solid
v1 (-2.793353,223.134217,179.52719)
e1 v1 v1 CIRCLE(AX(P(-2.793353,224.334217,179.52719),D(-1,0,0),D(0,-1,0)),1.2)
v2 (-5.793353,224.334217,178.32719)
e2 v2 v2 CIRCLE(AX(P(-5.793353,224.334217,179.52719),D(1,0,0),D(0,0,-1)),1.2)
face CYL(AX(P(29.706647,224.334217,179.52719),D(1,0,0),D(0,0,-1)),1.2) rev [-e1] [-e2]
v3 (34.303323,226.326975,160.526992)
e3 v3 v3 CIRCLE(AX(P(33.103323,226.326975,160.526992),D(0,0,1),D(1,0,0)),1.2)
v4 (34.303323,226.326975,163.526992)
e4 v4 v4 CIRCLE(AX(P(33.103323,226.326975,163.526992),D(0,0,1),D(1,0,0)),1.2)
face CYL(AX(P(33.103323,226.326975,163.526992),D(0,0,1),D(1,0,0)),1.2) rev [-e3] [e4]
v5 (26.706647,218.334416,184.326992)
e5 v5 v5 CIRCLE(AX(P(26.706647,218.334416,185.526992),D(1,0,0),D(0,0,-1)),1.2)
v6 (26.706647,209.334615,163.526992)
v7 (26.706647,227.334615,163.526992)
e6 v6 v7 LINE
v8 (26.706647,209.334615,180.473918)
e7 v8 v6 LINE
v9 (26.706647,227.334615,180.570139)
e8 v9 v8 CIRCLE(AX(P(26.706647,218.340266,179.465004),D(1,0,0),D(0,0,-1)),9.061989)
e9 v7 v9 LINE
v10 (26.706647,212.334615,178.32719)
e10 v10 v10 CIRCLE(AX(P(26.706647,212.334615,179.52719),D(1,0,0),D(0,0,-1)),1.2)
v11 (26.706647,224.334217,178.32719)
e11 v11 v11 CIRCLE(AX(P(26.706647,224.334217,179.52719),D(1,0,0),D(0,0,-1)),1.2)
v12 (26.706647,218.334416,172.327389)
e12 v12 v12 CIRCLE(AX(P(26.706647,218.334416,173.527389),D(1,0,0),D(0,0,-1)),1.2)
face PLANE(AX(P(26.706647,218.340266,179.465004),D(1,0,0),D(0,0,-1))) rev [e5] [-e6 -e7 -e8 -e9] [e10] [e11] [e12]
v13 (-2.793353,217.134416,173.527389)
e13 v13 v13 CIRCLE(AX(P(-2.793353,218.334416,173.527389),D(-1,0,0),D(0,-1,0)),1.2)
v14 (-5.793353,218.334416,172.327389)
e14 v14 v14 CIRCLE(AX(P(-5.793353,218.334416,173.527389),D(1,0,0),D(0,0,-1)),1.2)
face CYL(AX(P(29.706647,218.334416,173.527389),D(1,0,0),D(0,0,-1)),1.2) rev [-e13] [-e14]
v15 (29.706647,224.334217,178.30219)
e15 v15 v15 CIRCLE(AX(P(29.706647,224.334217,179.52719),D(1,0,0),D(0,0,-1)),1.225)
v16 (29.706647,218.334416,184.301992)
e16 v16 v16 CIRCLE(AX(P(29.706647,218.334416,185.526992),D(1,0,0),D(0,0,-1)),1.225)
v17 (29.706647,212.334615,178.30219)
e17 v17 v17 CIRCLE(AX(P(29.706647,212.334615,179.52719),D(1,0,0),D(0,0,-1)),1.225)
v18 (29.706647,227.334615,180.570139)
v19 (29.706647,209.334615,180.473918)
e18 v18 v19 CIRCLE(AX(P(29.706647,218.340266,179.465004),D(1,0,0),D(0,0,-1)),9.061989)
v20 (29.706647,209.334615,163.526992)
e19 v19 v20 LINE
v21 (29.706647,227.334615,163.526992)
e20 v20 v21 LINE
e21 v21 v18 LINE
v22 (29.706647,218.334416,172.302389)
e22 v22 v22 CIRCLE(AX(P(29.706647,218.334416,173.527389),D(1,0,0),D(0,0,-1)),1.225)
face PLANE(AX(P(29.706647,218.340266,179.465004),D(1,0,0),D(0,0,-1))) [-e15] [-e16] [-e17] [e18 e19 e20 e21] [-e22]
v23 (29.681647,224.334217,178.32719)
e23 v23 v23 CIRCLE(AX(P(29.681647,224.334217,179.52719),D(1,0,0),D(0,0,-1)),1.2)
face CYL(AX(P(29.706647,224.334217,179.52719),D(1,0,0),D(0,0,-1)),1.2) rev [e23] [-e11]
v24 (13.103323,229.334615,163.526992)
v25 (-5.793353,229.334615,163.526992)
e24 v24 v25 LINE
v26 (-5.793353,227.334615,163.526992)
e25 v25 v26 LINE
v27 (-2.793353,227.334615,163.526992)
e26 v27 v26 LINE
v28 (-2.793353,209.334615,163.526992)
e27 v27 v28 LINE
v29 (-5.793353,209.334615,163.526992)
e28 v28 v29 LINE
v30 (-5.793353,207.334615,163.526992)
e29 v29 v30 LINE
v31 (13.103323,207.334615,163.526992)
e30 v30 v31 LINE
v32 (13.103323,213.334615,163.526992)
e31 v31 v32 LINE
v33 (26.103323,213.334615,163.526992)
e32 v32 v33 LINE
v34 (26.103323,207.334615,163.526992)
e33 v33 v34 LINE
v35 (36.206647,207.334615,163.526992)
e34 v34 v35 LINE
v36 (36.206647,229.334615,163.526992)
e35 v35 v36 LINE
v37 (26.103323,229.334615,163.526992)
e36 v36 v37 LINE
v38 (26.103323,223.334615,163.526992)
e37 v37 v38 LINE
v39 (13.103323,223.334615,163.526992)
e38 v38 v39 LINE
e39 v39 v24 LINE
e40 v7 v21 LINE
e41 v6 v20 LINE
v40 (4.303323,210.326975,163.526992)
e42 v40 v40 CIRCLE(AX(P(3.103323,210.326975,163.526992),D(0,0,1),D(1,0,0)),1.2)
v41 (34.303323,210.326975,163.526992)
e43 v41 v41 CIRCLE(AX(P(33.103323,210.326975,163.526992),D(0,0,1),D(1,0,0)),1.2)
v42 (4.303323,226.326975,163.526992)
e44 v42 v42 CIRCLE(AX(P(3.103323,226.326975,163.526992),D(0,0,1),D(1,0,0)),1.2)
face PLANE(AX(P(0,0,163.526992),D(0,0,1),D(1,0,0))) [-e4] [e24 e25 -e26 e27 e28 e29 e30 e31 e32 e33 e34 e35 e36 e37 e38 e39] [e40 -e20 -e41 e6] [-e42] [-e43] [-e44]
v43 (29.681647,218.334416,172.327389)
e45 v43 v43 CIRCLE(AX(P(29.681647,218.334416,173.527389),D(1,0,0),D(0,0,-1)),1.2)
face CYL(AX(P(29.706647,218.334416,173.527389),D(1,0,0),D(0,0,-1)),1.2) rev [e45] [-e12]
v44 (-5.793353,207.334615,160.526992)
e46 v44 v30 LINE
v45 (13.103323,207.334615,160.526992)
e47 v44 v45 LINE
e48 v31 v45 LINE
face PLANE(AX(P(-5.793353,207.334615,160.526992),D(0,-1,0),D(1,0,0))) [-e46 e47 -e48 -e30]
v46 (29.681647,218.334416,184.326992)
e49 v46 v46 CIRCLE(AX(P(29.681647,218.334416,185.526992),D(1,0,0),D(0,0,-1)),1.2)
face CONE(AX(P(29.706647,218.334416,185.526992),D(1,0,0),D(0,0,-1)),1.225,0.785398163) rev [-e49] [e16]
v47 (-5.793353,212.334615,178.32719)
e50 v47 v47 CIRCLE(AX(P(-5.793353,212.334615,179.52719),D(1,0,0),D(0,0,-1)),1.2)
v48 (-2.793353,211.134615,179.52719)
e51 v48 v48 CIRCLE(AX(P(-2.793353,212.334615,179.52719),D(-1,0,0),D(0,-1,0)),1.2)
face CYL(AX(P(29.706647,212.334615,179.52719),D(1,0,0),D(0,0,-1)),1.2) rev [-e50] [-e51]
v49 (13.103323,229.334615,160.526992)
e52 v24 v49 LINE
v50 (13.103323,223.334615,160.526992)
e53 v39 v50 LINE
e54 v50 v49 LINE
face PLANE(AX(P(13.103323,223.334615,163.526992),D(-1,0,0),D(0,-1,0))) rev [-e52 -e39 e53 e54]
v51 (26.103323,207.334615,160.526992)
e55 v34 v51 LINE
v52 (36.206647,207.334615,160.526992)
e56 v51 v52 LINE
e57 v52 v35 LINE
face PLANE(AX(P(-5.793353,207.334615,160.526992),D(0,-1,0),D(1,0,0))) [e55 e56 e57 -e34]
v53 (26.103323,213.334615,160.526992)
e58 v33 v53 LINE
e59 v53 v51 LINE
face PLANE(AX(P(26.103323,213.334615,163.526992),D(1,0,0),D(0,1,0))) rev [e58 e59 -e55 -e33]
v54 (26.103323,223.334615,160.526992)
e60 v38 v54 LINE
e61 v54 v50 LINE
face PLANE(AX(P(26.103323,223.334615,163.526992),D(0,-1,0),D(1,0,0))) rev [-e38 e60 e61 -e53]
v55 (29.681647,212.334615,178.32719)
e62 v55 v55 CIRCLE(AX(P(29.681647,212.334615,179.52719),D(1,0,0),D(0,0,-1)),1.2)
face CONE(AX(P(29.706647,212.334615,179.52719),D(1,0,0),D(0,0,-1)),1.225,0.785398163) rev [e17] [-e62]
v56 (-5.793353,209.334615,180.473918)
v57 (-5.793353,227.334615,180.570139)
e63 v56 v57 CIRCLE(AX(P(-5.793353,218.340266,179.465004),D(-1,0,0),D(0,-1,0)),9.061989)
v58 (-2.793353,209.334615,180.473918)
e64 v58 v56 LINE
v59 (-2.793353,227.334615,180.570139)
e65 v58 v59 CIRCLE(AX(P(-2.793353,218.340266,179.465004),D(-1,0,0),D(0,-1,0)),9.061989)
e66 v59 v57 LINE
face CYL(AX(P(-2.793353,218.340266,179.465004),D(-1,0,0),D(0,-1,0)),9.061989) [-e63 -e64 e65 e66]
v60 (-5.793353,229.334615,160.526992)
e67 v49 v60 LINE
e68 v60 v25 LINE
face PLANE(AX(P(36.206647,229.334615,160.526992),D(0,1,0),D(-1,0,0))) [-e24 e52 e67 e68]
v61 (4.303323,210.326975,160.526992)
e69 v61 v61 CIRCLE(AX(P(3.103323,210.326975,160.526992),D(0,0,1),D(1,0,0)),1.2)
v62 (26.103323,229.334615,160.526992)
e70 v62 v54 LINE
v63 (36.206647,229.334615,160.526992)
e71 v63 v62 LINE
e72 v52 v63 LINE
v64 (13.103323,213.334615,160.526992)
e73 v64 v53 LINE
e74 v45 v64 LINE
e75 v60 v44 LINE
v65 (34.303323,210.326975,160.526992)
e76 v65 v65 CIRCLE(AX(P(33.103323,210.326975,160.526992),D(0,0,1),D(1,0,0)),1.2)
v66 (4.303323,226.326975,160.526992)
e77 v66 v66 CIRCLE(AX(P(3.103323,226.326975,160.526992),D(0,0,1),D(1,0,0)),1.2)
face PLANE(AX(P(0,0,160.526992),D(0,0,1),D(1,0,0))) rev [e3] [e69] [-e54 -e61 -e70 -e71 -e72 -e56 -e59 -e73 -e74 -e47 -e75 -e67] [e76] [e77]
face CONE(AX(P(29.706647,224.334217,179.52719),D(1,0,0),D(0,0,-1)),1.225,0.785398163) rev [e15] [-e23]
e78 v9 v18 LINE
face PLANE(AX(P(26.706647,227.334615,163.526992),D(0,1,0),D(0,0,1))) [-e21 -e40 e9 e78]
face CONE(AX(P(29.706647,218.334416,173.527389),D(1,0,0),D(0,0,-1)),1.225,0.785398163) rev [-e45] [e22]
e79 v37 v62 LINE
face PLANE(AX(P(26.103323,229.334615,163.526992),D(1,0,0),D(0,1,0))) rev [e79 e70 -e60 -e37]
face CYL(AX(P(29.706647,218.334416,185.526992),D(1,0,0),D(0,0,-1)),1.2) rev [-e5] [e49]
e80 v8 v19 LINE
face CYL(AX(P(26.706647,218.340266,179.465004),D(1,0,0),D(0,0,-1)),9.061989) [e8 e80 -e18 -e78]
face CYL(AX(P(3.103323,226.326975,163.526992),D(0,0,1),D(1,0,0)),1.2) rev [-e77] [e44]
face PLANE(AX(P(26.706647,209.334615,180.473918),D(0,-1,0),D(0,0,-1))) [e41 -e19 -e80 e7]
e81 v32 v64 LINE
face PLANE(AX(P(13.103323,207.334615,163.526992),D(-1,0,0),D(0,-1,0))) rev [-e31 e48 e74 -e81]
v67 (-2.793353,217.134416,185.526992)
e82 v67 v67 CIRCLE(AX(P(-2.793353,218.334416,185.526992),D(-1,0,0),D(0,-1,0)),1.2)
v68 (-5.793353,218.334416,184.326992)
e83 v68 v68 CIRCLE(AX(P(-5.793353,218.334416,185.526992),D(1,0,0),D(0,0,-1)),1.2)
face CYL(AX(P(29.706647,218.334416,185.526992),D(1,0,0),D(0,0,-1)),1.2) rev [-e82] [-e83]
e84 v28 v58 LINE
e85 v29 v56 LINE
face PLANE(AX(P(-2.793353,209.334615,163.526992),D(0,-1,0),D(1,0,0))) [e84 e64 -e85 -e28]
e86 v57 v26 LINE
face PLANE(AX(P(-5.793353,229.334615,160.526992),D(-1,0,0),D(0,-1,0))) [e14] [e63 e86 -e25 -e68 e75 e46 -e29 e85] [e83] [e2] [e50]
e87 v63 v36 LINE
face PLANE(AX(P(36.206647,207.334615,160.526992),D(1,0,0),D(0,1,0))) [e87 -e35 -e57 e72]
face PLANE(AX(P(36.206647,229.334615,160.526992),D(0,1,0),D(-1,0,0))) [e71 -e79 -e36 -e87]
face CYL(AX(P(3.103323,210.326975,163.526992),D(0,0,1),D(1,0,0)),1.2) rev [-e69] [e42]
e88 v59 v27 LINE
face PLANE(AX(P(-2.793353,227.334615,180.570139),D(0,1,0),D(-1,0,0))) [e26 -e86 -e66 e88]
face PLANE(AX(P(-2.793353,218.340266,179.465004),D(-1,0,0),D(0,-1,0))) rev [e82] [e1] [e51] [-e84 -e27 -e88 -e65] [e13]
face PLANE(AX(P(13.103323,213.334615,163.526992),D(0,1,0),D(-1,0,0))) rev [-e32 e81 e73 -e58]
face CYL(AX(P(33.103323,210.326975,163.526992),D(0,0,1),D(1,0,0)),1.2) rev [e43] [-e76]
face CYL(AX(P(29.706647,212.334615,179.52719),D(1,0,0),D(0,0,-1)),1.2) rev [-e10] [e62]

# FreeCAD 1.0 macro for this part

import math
import FreeCAD as App
import Part
import Sketcher
Q = App.Units.Quantity


def add_polygon(sketch, points):
    """Adds a closed chain of lines whose ends are joined by coincident constraints."""
    first, n = sketch.GeometryCount, len(points)
    for a, b in zip(points, points[1:] + points[:1]):
        sketch.addGeometry(Part.LineSegment(App.Vector(*a, 0), App.Vector(*b, 0)), False)
    for i in range(n):
        sketch.addConstraint(Sketcher.Constraint("Coincident", first + i, 2, first + (i + 1) % n, 1))

doc = App.newDocument("Part")
body = doc.addObject("PartDesign::Body", "Body")

# Sketch on XY plane
sketch1 = body.newObject("Sketcher::SketchObject", "Sketch")
sketch1.AttachmentSupport = (doc.getObject("XY_Plane"), [""])
sketch1.MapMode = "FlatFace"
sketch1.AttachmentOffset = App.Placement(App.Vector(0, 0, 163.526992), App.Rotation())
add_polygon(sketch1, [(-5.793353, 229.334615), (-5.793353, 207.334615), (36.206647, 207.334615), (36.206647, 229.334615)])  # lines 0-3
sketch1.addConstraint(Sketcher.Constraint("Vertical", 0))
sketch1.addConstraint(Sketcher.Constraint("Horizontal", 1))
sketch1.addConstraint(Sketcher.Constraint("Vertical", 2))
sketch1.addConstraint(Sketcher.Constraint("Horizontal", 3))
sketch1.addConstraint(Sketcher.Constraint("DistanceX", 1, 1, 1, 2, Q("42 mm")))
sketch1.addConstraint(Sketcher.Constraint("DistanceY", 0, 2, 0, 1, Q("22 mm")))
sketch1.addConstraint(Sketcher.Constraint("DistanceX", 0, 2, -1, 1, Q("5.793353 mm")))
sketch1.addConstraint(Sketcher.Constraint("DistanceY", -1, 1, 0, 2, Q("207.334615 mm")))
pad1 = body.newObject("PartDesign::Pad", "Pad")
pad1.Profile = sketch1
pad1.Length = 3
pad1.Reversed = True

# Sketch on XY plane
sketch2 = body.newObject("Sketcher::SketchObject", "Sketch001")
sketch2.AttachmentSupport = (doc.getObject("XY_Plane"), [""])
sketch2.MapMode = "FlatFace"
sketch2.AttachmentOffset = App.Placement(App.Vector(0, 0, 160.526992), App.Rotation())
add_polygon(sketch2, [(26.103323, 229.334615), (26.103323, 223.334615), (13.103323, 223.334615), (13.103323, 229.334615)])  # lines 0-3
sketch2.addConstraint(Sketcher.Constraint("Vertical", 0))
sketch2.addConstraint(Sketcher.Constraint("Horizontal", 1))
sketch2.addConstraint(Sketcher.Constraint("Vertical", 2))
sketch2.addConstraint(Sketcher.Constraint("Horizontal", 3))
sketch2.addConstraint(Sketcher.Constraint("DistanceX", 1, 2, 1, 1, Q("13 mm")))
sketch2.addConstraint(Sketcher.Constraint("DistanceY", 0, 2, 0, 1, Q("6 mm")))
sketch2.addConstraint(Sketcher.Constraint("DistanceX", -1, 1, 0, 2, Q("26.103323 mm")))
sketch2.addConstraint(Sketcher.Constraint("DistanceY", -1, 1, 0, 2, Q("223.334615 mm")))
pocket1 = body.newObject("PartDesign::Pocket", "Pocket")
pocket1.Profile = sketch2
pocket1.Type = "ThroughAll"
pocket1.Reversed = True

# Sketch on XY plane
sketch3 = body.newObject("Sketcher::SketchObject", "Sketch002")
sketch3.AttachmentSupport = (doc.getObject("XY_Plane"), [""])
sketch3.MapMode = "FlatFace"
sketch3.AttachmentOffset = App.Placement(App.Vector(0, 0, 160.526992), App.Rotation())
add_polygon(sketch3, [(26.103323, 213.334615), (26.103323, 207.334615), (13.103323, 207.334615), (13.103323, 213.334615)])  # lines 0-3
sketch3.addConstraint(Sketcher.Constraint("Vertical", 0))
sketch3.addConstraint(Sketcher.Constraint("Horizontal", 1))
sketch3.addConstraint(Sketcher.Constraint("Vertical", 2))
sketch3.addConstraint(Sketcher.Constraint("Horizontal", 3))
sketch3.addConstraint(Sketcher.Constraint("DistanceX", 1, 2, 1, 1, Q("13 mm")))
sketch3.addConstraint(Sketcher.Constraint("DistanceY", 0, 2, 0, 1, Q("6 mm")))
sketch3.addConstraint(Sketcher.Constraint("DistanceX", -1, 1, 0, 2, Q("26.103323 mm")))
sketch3.addConstraint(Sketcher.Constraint("DistanceY", -1, 1, 0, 2, Q("207.334615 mm")))
pocket2 = body.newObject("PartDesign::Pocket", "Pocket001")
pocket2.Profile = sketch3
pocket2.Type = "ThroughAll"
pocket2.Reversed = True

# Sketch on YZ plane
sketch4 = body.newObject("Sketcher::SketchObject", "Sketch003")
sketch4.AttachmentSupport = (doc.getObject("YZ_Plane"), [""])
sketch4.MapMode = "FlatFace"
sketch4.AttachmentOffset = App.Placement(App.Vector(0, 0, -5.793353), App.Rotation())
sketch4.addGeometry(Part.LineSegment(App.Vector(227.334615, 180.570139, 0), App.Vector(227.334615, 163.526992, 0)), False)
sketch4.addGeometry(Part.LineSegment(App.Vector(227.334615, 163.526992, 0), App.Vector(209.334615, 163.526992, 0)), False)
sketch4.addGeometry(Part.LineSegment(App.Vector(209.334615, 163.526992, 0), App.Vector(209.334615, 180.473918, 0)), False)
sketch4.addGeometry(Part.ArcOfCircle(Part.Circle(App.Vector(218.340266, 179.465004, 0), App.Vector(0, 0, 1), 9.061989), math.radians(7.004816), math.radians(173.607742)), False)
sketch4.addConstraint(Sketcher.Constraint("Coincident", 0, 2, 1, 1))
sketch4.addConstraint(Sketcher.Constraint("Coincident", 1, 2, 2, 1))
sketch4.addConstraint(Sketcher.Constraint("Coincident", 2, 2, 3, 2))
sketch4.addConstraint(Sketcher.Constraint("Coincident", 3, 1, 0, 1))
sketch4.addConstraint(Sketcher.Constraint("Vertical", 0))
sketch4.addConstraint(Sketcher.Constraint("Horizontal", 1))
sketch4.addConstraint(Sketcher.Constraint("Vertical", 2))
sketch4.addConstraint(Sketcher.Constraint("DistanceX", 1, 2, 1, 1, Q("18 mm")))
sketch4.addConstraint(Sketcher.Constraint("Radius", 3, Q("9.061989 mm")))
sketch4.addConstraint(Sketcher.Constraint("DistanceY", 0, 2, 0, 1, Q("17.043147 mm")))
sketch4.addConstraint(Sketcher.Constraint("DistanceY", 2, 1, 2, 2, Q("16.946926 mm")))
sketch4.addConstraint(Sketcher.Constraint("DistanceY", -1, 1, 0, 2, Q("163.526992 mm")))
sketch4.addConstraint(Sketcher.Constraint("DistanceX", -1, 1, 3, 3, Q("218.340266 mm")))
pad2 = body.newObject("PartDesign::Pad", "Pad001")
pad2.Profile = sketch4
pad2.Length = 3

# Sketch on YZ plane
sketch5 = body.newObject("Sketcher::SketchObject", "Sketch004")
sketch5.AttachmentSupport = (doc.getObject("YZ_Plane"), [""])
sketch5.MapMode = "FlatFace"
sketch5.AttachmentOffset = App.Placement(App.Vector(0, 0, 26.706647), App.Rotation())
sketch5.addGeometry(Part.LineSegment(App.Vector(209.334615, 180.473918, 0), App.Vector(209.334615, 163.526992, 0)), False)
sketch5.addGeometry(Part.LineSegment(App.Vector(209.334615, 163.526992, 0), App.Vector(227.334615, 163.526992, 0)), False)
sketch5.addGeometry(Part.LineSegment(App.Vector(227.334615, 163.526992, 0), App.Vector(227.334615, 180.570139, 0)), False)
sketch5.addGeometry(Part.ArcOfCircle(Part.Circle(App.Vector(218.340266, 179.465004, 0), App.Vector(0, 0, 1), 9.061989), math.radians(7.004816), math.radians(173.607742)), False)
sketch5.addConstraint(Sketcher.Constraint("Coincident", 0, 2, 1, 1))
sketch5.addConstraint(Sketcher.Constraint("Coincident", 1, 2, 2, 1))
sketch5.addConstraint(Sketcher.Constraint("Coincident", 2, 2, 3, 1))
sketch5.addConstraint(Sketcher.Constraint("Coincident", 3, 2, 0, 1))
sketch5.addConstraint(Sketcher.Constraint("Vertical", 0))
sketch5.addConstraint(Sketcher.Constraint("Horizontal", 1))
sketch5.addConstraint(Sketcher.Constraint("Vertical", 2))
sketch5.addConstraint(Sketcher.Constraint("DistanceX", 1, 1, 1, 2, Q("18 mm")))
sketch5.addConstraint(Sketcher.Constraint("Radius", 3, Q("9.061989 mm")))
sketch5.addConstraint(Sketcher.Constraint("DistanceY", 0, 2, 0, 1, Q("16.946926 mm")))
sketch5.addConstraint(Sketcher.Constraint("DistanceY", 2, 1, 2, 2, Q("17.043147 mm")))
sketch5.addConstraint(Sketcher.Constraint("DistanceY", -1, 1, 0, 2, Q("163.526992 mm")))
sketch5.addConstraint(Sketcher.Constraint("DistanceX", -1, 1, 3, 3, Q("218.340266 mm")))
pad3 = body.newObject("PartDesign::Pad", "Pad002")
pad3.Profile = sketch5
pad3.Length = 3

# Sketch on YZ plane
sketch6 = body.newObject("Sketcher::SketchObject", "Sketch005")
sketch6.AttachmentSupport = (doc.getObject("YZ_Plane"), [""])
sketch6.MapMode = "FlatFace"
sketch6.AttachmentOffset = App.Placement(App.Vector(0, 0, 29.706647), App.Rotation())
sketch6.addGeometry(Part.Circle(App.Vector(224.334217, 179.52719, 0), App.Vector(0, 0, 1), 1.2), False)
sketch6.addGeometry(Part.Circle(App.Vector(218.334416, 185.526992, 0), App.Vector(0, 0, 1), 1.2), False)
sketch6.addGeometry(Part.Circle(App.Vector(212.334615, 179.52719, 0), App.Vector(0, 0, 1), 1.2), False)
sketch6.addGeometry(Part.Circle(App.Vector(218.334416, 173.527389, 0), App.Vector(0, 0, 1), 1.2), False)
sketch6.addConstraint(Sketcher.Constraint("Equal", 0, 1))
sketch6.addConstraint(Sketcher.Constraint("Equal", 1, 2))
sketch6.addConstraint(Sketcher.Constraint("Equal", 2, 3))
sketch6.addConstraint(Sketcher.Constraint("Horizontal", 0, 3, 2, 3))
sketch6.addConstraint(Sketcher.Constraint("Vertical", 1, 3, 3, 3))
sketch6.addConstraint(Sketcher.Constraint("Diameter", 0, Q("2.4 mm")))
sketch6.addConstraint(Sketcher.Constraint("DistanceX", 1, 3, 0, 3, Q("5.999801 mm")))
sketch6.addConstraint(Sketcher.Constraint("DistanceY", 0, 3, 1, 3, Q("5.999801 mm")))
sketch6.addConstraint(Sketcher.Constraint("DistanceX", 2, 3, 1, 3, Q("5.999801 mm")))
sketch6.addConstraint(Sketcher.Constraint("DistanceY", 3, 3, 0, 3, Q("5.999801 mm")))
sketch6.addConstraint(Sketcher.Constraint("DistanceY", -1, 1, 0, 3, Q("179.52719 mm")))
sketch6.addConstraint(Sketcher.Constraint("DistanceX", -1, 1, 0, 3, Q("224.334217 mm")))
doc.recompute()
hole = body.newObject("PartDesign::Hole", "Hole")
hole.Profile = sketch6
hole.ThreadType = "None"
hole.Diameter = 2.4
hole.DepthType = "ThroughAll"
hole.HoleCutType = "Countersink"
hole.HoleCutDiameter = 2.45
hole.HoleCutCountersinkAngle = 90

# Sketch on XY plane
sketch7 = body.newObject("Sketcher::SketchObject", "Sketch006")
sketch7.AttachmentSupport = (doc.getObject("XY_Plane"), [""])
sketch7.MapMode = "FlatFace"
sketch7.AttachmentOffset = App.Placement(App.Vector(0, 0, 163.526992), App.Rotation())
sketch7.addGeometry(Part.Circle(App.Vector(3.103323, 226.326975, 0), App.Vector(0, 0, 1), 1.2), False)
sketch7.addGeometry(Part.Circle(App.Vector(3.103323, 210.326975, 0), App.Vector(0, 0, 1), 1.2), False)
sketch7.addGeometry(Part.Circle(App.Vector(33.103323, 210.326975, 0), App.Vector(0, 0, 1), 1.2), False)
sketch7.addGeometry(Part.Circle(App.Vector(33.103323, 226.326975, 0), App.Vector(0, 0, 1), 1.2), False)
sketch7.addConstraint(Sketcher.Constraint("Equal", 0, 1))
sketch7.addConstraint(Sketcher.Constraint("Equal", 1, 2))
sketch7.addConstraint(Sketcher.Constraint("Equal", 2, 3))
sketch7.addConstraint(Sketcher.Constraint("Horizontal", 1, 3, 2, 3))
sketch7.addConstraint(Sketcher.Constraint("Horizontal", 0, 3, 3, 3))
sketch7.addConstraint(Sketcher.Constraint("Vertical", 0, 3, 1, 3))
sketch7.addConstraint(Sketcher.Constraint("Vertical", 2, 3, 3, 3))
sketch7.addConstraint(Sketcher.Constraint("Diameter", 0, Q("2.4 mm")))
sketch7.addConstraint(Sketcher.Constraint("DistanceY", 1, 3, 0, 3, Q("16 mm")))
sketch7.addConstraint(Sketcher.Constraint("DistanceX", 1, 3, 2, 3, Q("30 mm")))
sketch7.addConstraint(Sketcher.Constraint("DistanceX", -1, 1, 0, 3, Q("3.103323 mm")))
sketch7.addConstraint(Sketcher.Constraint("DistanceY", -1, 1, 0, 3, Q("226.326975 mm")))
doc.recompute()
hole2 = body.newObject("PartDesign::Hole", "Hole001")
hole2.Profile = sketch7
hole2.ThreadType = "None"
hole2.Diameter = 2.4
hole2.DepthType = "ThroughAll"

doc.recompute()
